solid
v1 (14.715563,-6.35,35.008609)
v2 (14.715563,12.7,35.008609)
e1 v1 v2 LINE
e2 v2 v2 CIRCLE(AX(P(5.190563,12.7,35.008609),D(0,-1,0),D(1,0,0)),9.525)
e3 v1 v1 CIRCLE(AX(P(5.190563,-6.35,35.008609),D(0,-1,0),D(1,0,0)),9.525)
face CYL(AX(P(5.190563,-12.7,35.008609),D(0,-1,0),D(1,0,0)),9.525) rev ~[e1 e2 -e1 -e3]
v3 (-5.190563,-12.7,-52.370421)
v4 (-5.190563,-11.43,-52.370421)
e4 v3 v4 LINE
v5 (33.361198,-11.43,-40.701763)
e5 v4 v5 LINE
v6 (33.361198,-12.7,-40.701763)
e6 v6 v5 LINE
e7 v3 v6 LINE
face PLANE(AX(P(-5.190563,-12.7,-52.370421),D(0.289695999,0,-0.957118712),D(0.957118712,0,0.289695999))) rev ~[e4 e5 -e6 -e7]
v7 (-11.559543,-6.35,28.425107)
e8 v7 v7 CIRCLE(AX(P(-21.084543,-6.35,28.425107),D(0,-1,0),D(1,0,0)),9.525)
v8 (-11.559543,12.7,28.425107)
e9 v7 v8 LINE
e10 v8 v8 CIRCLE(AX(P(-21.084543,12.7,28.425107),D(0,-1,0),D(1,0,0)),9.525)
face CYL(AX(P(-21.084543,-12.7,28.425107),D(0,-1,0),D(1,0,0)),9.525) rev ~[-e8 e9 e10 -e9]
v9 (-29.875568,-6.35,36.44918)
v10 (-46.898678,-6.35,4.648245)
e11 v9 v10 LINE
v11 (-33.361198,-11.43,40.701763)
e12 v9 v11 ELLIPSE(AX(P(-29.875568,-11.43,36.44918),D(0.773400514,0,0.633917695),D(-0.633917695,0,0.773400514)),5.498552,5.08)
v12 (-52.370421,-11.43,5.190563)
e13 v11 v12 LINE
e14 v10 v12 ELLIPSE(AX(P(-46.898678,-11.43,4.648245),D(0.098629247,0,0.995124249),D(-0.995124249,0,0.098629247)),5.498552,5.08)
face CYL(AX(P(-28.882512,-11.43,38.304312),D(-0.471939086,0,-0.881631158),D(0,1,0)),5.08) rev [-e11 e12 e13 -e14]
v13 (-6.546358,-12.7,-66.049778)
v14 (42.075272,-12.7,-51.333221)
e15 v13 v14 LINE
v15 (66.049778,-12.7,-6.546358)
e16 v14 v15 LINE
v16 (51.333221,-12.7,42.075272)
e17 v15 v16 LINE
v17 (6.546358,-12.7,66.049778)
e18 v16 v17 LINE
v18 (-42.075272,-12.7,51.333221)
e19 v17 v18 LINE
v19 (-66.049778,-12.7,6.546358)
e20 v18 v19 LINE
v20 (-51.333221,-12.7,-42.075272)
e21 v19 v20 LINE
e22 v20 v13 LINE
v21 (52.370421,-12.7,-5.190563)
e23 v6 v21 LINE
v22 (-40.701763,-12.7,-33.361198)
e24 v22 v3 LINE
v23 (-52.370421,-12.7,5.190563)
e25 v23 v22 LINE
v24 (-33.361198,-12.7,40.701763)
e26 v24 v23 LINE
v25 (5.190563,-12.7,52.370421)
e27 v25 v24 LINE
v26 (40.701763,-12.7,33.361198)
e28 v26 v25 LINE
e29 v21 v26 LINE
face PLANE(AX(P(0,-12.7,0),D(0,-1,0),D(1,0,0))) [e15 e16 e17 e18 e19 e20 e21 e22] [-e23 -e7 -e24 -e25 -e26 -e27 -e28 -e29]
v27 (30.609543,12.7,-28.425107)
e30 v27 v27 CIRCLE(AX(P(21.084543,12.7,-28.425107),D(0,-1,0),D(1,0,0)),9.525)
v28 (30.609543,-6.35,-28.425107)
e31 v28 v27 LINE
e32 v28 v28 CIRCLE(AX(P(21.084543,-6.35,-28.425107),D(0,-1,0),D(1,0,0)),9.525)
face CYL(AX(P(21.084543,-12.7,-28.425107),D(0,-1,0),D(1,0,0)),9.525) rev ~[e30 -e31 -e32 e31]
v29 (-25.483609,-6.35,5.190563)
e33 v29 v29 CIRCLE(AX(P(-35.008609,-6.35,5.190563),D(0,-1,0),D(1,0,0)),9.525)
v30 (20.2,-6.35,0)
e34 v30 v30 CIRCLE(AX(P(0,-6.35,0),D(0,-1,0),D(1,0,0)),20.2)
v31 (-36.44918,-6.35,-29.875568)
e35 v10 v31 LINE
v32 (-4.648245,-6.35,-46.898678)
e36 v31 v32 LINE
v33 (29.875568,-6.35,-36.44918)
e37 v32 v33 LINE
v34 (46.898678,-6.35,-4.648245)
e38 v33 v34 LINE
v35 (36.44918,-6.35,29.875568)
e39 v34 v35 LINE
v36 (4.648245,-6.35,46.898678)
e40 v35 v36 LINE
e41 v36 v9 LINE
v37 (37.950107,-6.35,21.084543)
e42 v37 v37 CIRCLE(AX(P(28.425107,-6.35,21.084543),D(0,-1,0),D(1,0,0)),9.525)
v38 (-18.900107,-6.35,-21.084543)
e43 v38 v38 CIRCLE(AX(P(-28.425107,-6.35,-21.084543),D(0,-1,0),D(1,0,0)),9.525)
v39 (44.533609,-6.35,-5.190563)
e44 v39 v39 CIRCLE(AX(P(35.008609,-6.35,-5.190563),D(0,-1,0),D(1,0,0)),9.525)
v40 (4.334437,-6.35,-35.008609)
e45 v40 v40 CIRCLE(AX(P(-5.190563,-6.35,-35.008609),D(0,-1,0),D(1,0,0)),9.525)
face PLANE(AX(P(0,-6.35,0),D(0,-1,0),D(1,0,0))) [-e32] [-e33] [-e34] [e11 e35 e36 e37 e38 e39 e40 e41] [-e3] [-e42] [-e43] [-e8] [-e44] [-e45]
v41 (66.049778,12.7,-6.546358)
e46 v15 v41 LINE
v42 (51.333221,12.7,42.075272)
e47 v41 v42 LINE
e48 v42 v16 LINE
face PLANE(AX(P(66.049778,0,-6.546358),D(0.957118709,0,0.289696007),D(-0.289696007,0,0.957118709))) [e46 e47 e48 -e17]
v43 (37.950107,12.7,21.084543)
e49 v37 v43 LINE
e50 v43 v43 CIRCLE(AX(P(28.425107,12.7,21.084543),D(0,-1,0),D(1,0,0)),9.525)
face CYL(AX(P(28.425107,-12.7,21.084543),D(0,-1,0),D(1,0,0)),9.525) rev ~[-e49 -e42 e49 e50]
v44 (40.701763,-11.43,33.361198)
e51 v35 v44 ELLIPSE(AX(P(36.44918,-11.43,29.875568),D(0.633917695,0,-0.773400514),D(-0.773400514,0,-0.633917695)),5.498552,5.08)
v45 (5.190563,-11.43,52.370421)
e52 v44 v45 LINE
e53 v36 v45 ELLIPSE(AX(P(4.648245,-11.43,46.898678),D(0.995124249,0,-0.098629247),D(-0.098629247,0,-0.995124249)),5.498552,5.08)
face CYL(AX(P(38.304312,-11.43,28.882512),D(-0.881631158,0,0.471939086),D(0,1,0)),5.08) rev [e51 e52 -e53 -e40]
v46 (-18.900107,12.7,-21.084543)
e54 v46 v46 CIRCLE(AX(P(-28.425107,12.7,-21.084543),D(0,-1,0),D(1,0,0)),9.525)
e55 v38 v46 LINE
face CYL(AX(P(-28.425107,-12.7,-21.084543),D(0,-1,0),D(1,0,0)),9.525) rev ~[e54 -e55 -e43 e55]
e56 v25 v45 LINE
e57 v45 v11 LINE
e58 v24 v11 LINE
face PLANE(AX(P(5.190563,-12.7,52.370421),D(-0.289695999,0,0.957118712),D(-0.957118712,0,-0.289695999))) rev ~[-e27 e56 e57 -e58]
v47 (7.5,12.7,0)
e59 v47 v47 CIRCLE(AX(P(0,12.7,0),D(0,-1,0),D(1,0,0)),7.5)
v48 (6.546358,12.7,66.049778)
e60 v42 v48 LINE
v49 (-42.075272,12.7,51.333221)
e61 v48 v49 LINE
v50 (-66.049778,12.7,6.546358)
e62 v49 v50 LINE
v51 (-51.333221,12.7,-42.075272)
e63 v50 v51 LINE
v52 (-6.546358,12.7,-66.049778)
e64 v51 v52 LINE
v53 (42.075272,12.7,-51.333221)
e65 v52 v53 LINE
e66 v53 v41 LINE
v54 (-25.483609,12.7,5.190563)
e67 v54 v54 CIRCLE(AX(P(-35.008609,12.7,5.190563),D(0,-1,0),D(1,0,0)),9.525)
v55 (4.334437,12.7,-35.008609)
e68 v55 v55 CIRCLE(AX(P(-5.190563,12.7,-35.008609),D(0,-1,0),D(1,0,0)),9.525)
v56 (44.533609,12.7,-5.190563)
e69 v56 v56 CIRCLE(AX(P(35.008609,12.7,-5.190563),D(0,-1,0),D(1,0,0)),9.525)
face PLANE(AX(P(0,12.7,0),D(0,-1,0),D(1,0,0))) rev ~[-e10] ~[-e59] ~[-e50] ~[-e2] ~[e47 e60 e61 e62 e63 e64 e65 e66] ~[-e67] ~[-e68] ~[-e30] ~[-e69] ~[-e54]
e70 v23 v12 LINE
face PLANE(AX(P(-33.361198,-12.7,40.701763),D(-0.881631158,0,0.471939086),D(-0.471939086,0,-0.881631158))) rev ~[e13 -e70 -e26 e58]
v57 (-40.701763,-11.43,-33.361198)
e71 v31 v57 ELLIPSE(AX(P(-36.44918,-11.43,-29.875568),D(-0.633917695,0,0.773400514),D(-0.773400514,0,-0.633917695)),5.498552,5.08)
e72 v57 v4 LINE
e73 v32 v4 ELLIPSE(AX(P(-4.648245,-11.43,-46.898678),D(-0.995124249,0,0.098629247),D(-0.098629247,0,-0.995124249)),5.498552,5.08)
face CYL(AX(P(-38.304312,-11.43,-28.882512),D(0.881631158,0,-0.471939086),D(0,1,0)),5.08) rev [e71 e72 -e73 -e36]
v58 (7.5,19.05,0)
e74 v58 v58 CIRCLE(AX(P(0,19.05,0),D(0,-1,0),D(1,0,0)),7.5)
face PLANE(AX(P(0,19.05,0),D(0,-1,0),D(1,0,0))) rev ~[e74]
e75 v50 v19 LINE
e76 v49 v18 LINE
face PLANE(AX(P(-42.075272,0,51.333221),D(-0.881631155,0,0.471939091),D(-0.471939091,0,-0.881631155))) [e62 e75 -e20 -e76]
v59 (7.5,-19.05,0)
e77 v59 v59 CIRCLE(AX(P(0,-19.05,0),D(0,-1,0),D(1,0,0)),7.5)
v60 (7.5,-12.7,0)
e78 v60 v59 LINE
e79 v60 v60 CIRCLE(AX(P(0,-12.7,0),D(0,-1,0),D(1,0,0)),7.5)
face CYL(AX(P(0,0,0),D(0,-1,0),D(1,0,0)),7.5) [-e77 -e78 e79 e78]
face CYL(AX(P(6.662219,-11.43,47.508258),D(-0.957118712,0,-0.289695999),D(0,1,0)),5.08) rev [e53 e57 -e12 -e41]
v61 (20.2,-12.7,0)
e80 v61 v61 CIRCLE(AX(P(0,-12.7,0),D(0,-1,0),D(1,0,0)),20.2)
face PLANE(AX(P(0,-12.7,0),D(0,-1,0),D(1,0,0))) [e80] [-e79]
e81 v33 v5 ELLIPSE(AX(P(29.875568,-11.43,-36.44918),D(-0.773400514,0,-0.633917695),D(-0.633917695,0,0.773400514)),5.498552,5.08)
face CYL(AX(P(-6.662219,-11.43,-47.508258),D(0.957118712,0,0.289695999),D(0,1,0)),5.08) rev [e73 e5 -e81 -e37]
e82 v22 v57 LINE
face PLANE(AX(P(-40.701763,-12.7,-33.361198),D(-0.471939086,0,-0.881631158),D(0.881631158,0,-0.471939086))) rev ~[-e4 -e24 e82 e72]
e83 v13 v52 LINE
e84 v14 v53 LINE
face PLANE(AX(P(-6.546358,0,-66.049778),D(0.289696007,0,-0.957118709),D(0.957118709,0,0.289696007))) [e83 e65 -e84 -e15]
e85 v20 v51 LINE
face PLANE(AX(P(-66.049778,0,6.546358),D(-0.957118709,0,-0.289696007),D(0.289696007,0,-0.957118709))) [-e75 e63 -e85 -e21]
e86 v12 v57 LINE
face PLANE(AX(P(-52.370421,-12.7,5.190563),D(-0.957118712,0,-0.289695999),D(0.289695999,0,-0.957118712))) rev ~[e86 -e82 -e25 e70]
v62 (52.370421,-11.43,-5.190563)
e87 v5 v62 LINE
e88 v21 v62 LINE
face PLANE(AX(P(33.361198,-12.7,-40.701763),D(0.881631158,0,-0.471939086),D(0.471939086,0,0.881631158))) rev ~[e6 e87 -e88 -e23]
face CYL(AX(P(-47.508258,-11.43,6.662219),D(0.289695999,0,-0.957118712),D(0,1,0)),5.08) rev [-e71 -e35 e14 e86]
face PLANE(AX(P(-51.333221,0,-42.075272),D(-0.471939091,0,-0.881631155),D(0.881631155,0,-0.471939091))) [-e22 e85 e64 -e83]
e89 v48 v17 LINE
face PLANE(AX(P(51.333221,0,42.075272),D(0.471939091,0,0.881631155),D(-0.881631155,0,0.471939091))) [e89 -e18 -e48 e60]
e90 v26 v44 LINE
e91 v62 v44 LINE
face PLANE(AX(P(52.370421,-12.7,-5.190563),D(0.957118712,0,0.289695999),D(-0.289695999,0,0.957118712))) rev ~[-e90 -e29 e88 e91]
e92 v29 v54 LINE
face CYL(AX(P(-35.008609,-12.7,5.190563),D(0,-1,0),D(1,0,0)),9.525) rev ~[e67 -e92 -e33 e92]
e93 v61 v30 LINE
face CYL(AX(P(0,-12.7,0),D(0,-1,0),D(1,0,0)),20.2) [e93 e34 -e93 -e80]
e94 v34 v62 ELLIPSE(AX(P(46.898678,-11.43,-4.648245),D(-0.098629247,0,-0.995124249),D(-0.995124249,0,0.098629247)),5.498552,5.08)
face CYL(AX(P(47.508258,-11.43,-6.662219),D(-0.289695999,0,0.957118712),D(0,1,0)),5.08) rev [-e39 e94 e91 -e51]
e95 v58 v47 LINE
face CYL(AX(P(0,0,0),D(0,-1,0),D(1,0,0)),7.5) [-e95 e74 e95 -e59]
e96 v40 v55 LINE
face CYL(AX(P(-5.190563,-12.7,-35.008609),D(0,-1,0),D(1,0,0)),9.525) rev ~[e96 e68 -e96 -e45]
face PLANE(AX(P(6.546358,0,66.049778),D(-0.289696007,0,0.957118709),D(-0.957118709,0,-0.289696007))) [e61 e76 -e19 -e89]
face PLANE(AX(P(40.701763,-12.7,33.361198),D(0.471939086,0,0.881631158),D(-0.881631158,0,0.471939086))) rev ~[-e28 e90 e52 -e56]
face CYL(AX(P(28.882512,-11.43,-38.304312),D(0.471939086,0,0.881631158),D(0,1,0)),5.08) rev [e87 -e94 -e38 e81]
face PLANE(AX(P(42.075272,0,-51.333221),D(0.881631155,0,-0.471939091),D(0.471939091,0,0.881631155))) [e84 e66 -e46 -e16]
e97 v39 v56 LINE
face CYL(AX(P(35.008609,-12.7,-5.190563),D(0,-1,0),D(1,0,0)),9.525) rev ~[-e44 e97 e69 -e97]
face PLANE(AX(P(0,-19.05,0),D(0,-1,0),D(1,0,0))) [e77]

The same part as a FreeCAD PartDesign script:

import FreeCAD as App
import Part
import Sketcher

V = App.Vector
Q = App.Units.Quantity


def edges_at(feature, points):
    """Names of the edges that pass closest to the given points."""
    edges = feature.Shape.Edges
    near = lambda p: min(range(len(edges)), key=lambda i: edges[i].distToShape(Part.Vertex(*p))[0])
    return sorted({f"Edge{near(p) + 1}" for p in points})


def add_polygon(sketch, points):
    """Adds a closed chain of lines whose ends are joined by coincident constraints."""
    first, n = sketch.GeometryCount, len(points)
    for a, b in zip(points, points[1:] + points[:1]):
        sketch.addGeometry(Part.LineSegment(App.Vector(*a, 0), App.Vector(*b, 0)), False)
    for i in range(n):
        sketch.addConstraint(Sketcher.Constraint("Coincident", first + i, 2, first + (i + 1) % n, 1))

doc = App.newDocument("Part")
body = doc.addObject("PartDesign::Body", "Body")

sketch1 = body.newObject("Sketcher::SketchObject", "Sketch")
sketch1.AttachmentSupport = (doc.getObject("XZ_Plane"), [""])
sketch1.MapMode = "FlatFace"
add_polygon(sketch1, [(66.049778, -6.546358), (51.333221, 42.075272), (6.546358, 66.049778), (-42.075272, 51.333221), (-66.049778, 6.546358), (-51.333221, -42.075272), (-6.546358, -66.049778), (42.075272, -51.333221)])
sketch1.addGeometry(Part.Circle(V(0, 0, 0), V(0, 0, 1), 7.5), False)
sketch1.addConstraint(Sketcher.Constraint("Coincident", 8, 3, -1, 1))
sketch1.addConstraint(Sketcher.Constraint("Symmetric", 0, 2, 4, 2, -1, 1))
sketch1.addConstraint(Sketcher.Constraint("Symmetric", 1, 2, 5, 2, -1, 1))
sketch1.addConstraint(Sketcher.Constraint("Symmetric", 2, 2, 6, 2, -1, 1))
sketch1.addConstraint(Sketcher.Constraint("Symmetric", 3, 2, 7, 2, -1, 1))
sketch1.addConstraint(Sketcher.Constraint("Perpendicular", 0, 2))
sketch1.addConstraint(Sketcher.Constraint("Perpendicular", 1, 3))
sketch1.addConstraint(Sketcher.Constraint("Equal", 0, 1))
sketch1.addConstraint(Sketcher.Constraint("Equal", 1, 2))
sketch1.addConstraint(Sketcher.Constraint("Equal", 2, 3))
sketch1.addConstraint(Sketcher.Constraint("Distance", 0, Q("2 in")))
sketch1.addConstraint(Sketcher.Constraint("Diameter", 8, Q("15 mm")))
sketch1.addConstraint(Sketcher.Constraint("DistanceX", 3, 2, 0, 2, Q("117.382999 mm")))
sketch1.addConstraint(Sketcher.Constraint("DistanceX", -1, 1, 0, 2, Q("51.333221 mm")))
pad1 = body.newObject("PartDesign::Pad", "Pad")
pad1.Profile = sketch1
pad1.Length = Q("1 in")
pad1.Midplane = True

sketch2 = body.newObject("Sketcher::SketchObject", "Sketch001")
sketch2.AttachmentSupport = (doc.getObject("XZ_Plane"), [""])
sketch2.MapMode = "FlatFace"
sketch2.addGeometry(Part.Circle(V(0, 0, 0), V(0, 0, 1), 7.5), False)
sketch2.addConstraint(Sketcher.Constraint("Coincident", 0, 3, -1, 1))
sketch2.addConstraint(Sketcher.Constraint("Diameter", 0, Q("15 mm")))
pad2 = body.newObject("PartDesign::Pad", "Pad001")
pad2.Profile = sketch2
pad2.Length = Q("1.5 in")
pad2.Midplane = True

sketch3 = body.newObject("Sketcher::SketchObject", "Sketch002")
sketch3.AttachmentSupport = (doc.getObject("XZ_Plane"), [""])
sketch3.MapMode = "FlatFace"
sketch3.AttachmentOffset = App.Placement(V(0, 0, 0.5 * 25.4), App.Rotation())
add_polygon(sketch3, [(-5.190563, -52.370421), (33.361198, -40.701763), (52.370421, -5.190563), (40.701763, 33.361198), (5.190563, 52.370421), (-33.361198, 40.701763), (-52.370421, 5.190563), (-40.701763, -33.361198)])
sketch3.addGeometry(Part.Circle(V(-5.190563, -35.008609, 0), V(0, 0, 1), 9.525), False)
sketch3.addGeometry(Part.Circle(V(-28.425107, -21.084543, 0), V(0, 0, 1), 9.525), False)
sketch3.addGeometry(Part.Circle(V(21.084543, -28.425107, 0), V(0, 0, 1), 9.525), False)
sketch3.addGeometry(Part.Circle(V(35.008609, -5.190563, 0), V(0, 0, 1), 9.525), False)
sketch3.addGeometry(Part.Circle(V(-35.008609, 5.190563, 0), V(0, 0, 1), 9.525), False)
sketch3.addGeometry(Part.Circle(V(-21.084543, 28.425107, 0), V(0, 0, 1), 9.525), False)
sketch3.addGeometry(Part.Circle(V(0, 0, 0), V(0, 0, 1), 20.2), False)
sketch3.addGeometry(Part.Circle(V(28.425107, 21.084543, 0), V(0, 0, 1), 9.525), False)
sketch3.addGeometry(Part.Circle(V(5.190563, 35.008609, 0), V(0, 0, 1), 9.525), False)
sketch3.addConstraint(Sketcher.Constraint("Coincident", 14, 3, -1, 1))
sketch3.addConstraint(Sketcher.Constraint("Equal", 8, 9))
sketch3.addConstraint(Sketcher.Constraint("Equal", 9, 10))
sketch3.addConstraint(Sketcher.Constraint("Equal", 10, 11))
sketch3.addConstraint(Sketcher.Constraint("Equal", 11, 12))
sketch3.addConstraint(Sketcher.Constraint("Equal", 12, 13))
sketch3.addConstraint(Sketcher.Constraint("Equal", 13, 15))
sketch3.addConstraint(Sketcher.Constraint("Equal", 15, 16))
sketch3.addConstraint(Sketcher.Constraint("Symmetric", 11, 3, 12, 3, -1, 1))
sketch3.addConstraint(Sketcher.Constraint("Symmetric", 10, 3, 13, 3, -1, 1))
sketch3.addConstraint(Sketcher.Constraint("Symmetric", 9, 3, 15, 3, -1, 1))
sketch3.addConstraint(Sketcher.Constraint("Symmetric", 8, 3, 16, 3, -1, 1))
sketch3.addConstraint(Sketcher.Constraint("Symmetric", 0, 2, 4, 2, -1, 1))
sketch3.addConstraint(Sketcher.Constraint("Symmetric", 1, 2, 5, 2, -1, 1))
sketch3.addConstraint(Sketcher.Constraint("Symmetric", 2, 2, 6, 2, -1, 1))
sketch3.addConstraint(Sketcher.Constraint("Symmetric", 3, 2, 7, 2, -1, 1))
sketch3.addConstraint(Sketcher.Constraint("Perpendicular", 0, 2))
sketch3.addConstraint(Sketcher.Constraint("Perpendicular", 1, 3))
sketch3.addConstraint(Sketcher.Constraint("Horizontal", 11, 3, 1, 2))
sketch3.addConstraint(Sketcher.Constraint("Vertical", 16, 3, 3, 2))
sketch3.addConstraint(Sketcher.Constraint("Equal", 0, 1))
sketch3.addConstraint(Sketcher.Constraint("Equal", 1, 2))
sketch3.addConstraint(Sketcher.Constraint("Equal", 2, 3))
sketch3.addConstraint(Sketcher.Constraint("Diameter", 8, Q("0.75 in")))
sketch3.addConstraint(Sketcher.Constraint("Diameter", 14, Q("40.4 mm")))
sketch3.addConstraint(Sketcher.Constraint("DistanceY", 9, 3, -1, 1, Q("0.8301001 in")))
sketch3.addConstraint(Sketcher.Constraint("DistanceX", -1, 1, 10, 3, Q("0.8301001 in")))
sketch3.addConstraint(Sketcher.Constraint("DistanceX", -1, 1, 0, 2, Q("33.361198 mm")))
sketch3.addConstraint(Sketcher.Constraint("DistanceY", 8, 3, 10, 3, Q("6.583502 mm")))
sketch3.addConstraint(Sketcher.Constraint("DistanceX", 12, 3, 9, 3, Q("6.583502 mm")))
sketch3.addConstraint(Sketcher.Constraint("DistanceY", 0, 2, 11, 3, Q("35.5112 mm")))
sketch3.addConstraint(Sketcher.Constraint("DistanceY", 8, 3, -1, 1, Q("35.008609 mm")))
sketch3.addConstraint(Sketcher.Constraint("DistanceX", -1, 1, 11, 3, Q("35.008609 mm")))
sketch3.addConstraint(Sketcher.Constraint("DistanceX", -1, 1, 1, 2, Q("52.370421 mm")))
pocket1 = body.newObject("PartDesign::Pocket", "Pocket")
pocket1.Profile = sketch3
pocket1.Length = Q("0.25 in")

sketch4 = body.newObject("Sketcher::SketchObject", "Sketch003")
sketch4.AttachmentSupport = (doc.getObject("XZ_Plane"), [""])
sketch4.MapMode = "FlatFace"
sketch4.AttachmentOffset = App.Placement(V(0, 0, 0.5 * 25.4), App.Rotation())
sketch4.addGeometry(Part.Circle(V(-35.008609, 5.190563, 0), V(0, 0, 1), 9.525), False)
sketch4.addGeometry(Part.Circle(V(-21.084543, 28.425107, 0), V(0, 0, 1), 9.525), False)
sketch4.addGeometry(Part.Circle(V(5.190563, 35.008609, 0), V(0, 0, 1), 9.525), False)
sketch4.addGeometry(Part.Circle(V(28.425107, 21.084543, 0), V(0, 0, 1), 9.525), False)
sketch4.addGeometry(Part.Circle(V(21.084543, -28.425107, 0), V(0, 0, 1), 9.525), False)
sketch4.addGeometry(Part.Circle(V(-28.425107, -21.084543, 0), V(0, 0, 1), 9.525), False)
sketch4.addGeometry(Part.Circle(V(35.008609, -5.190563, 0), V(0, 0, 1), 9.525), False)
sketch4.addGeometry(Part.Circle(V(-5.190563, -35.008609, 0), V(0, 0, 1), 9.525), False)
sketch4.addConstraint(Sketcher.Constraint("Equal", 0, 1))
sketch4.addConstraint(Sketcher.Constraint("Equal", 1, 2))
sketch4.addConstraint(Sketcher.Constraint("Equal", 2, 3))
sketch4.addConstraint(Sketcher.Constraint("Equal", 3, 4))
sketch4.addConstraint(Sketcher.Constraint("Equal", 4, 5))
sketch4.addConstraint(Sketcher.Constraint("Equal", 5, 6))
sketch4.addConstraint(Sketcher.Constraint("Equal", 6, 7))
sketch4.addConstraint(Sketcher.Constraint("Symmetric", 1, 3, 4, 3, -1, 1))
sketch4.addConstraint(Sketcher.Constraint("Symmetric", 3, 3, 5, 3, -1, 1))
sketch4.addConstraint(Sketcher.Constraint("Symmetric", 0, 3, 6, 3, -1, 1))
sketch4.addConstraint(Sketcher.Constraint("Symmetric", 2, 3, 7, 3, -1, 1))
sketch4.addConstraint(Sketcher.Constraint("Diameter", 0, Q("0.75 in")))
sketch4.addConstraint(Sketcher.Constraint("DistanceX", 1, 3, -1, 1, Q("0.8301001 in")))
sketch4.addConstraint(Sketcher.Constraint("DistanceY", -1, 1, 3, 3, Q("0.8301001 in")))
sketch4.addConstraint(Sketcher.Constraint("DistanceY", 1, 3, 2, 3, Q("6.583502 mm")))
sketch4.addConstraint(Sketcher.Constraint("DistanceX", 0, 3, 5, 3, Q("6.583502 mm")))
sketch4.addConstraint(Sketcher.Constraint("DistanceX", 0, 3, -1, 1, Q("35.008609 mm")))
sketch4.addConstraint(Sketcher.Constraint("DistanceY", -1, 1, 2, 3, Q("35.008609 mm")))
sketch4.addConstraint(Sketcher.Constraint("DistanceX", 0, 3, 2, 3, Q("40.199172 mm")))
sketch4.addConstraint(Sketcher.Constraint("DistanceY", 0, 3, 3, 3, Q("15.89398 mm")))
pocket2 = body.newObject("PartDesign::Pocket", "Pocket001")
pocket2.Profile = sketch4
pocket2.Type = "ThroughAll"
doc.recompute()

fillet = body.newObject("PartDesign::Fillet", "Fillet")
fillet.Base = (pocket2, edges_at(pocket2, [
    (-14.085, -6.35, 46.536),
    (-42.866, -6.35, 22.946),
    (-46.536, -6.35, -14.085),
    (-22.946, -6.35, -42.866),
    (22.946, -6.35, 42.866),
    (46.536, -6.35, 14.085),
    (42.866, -6.35, -22.946),
    (14.085, -6.35, -46.536),
]))
fillet.Radius = Q("0.2 in")

doc.recompute()
